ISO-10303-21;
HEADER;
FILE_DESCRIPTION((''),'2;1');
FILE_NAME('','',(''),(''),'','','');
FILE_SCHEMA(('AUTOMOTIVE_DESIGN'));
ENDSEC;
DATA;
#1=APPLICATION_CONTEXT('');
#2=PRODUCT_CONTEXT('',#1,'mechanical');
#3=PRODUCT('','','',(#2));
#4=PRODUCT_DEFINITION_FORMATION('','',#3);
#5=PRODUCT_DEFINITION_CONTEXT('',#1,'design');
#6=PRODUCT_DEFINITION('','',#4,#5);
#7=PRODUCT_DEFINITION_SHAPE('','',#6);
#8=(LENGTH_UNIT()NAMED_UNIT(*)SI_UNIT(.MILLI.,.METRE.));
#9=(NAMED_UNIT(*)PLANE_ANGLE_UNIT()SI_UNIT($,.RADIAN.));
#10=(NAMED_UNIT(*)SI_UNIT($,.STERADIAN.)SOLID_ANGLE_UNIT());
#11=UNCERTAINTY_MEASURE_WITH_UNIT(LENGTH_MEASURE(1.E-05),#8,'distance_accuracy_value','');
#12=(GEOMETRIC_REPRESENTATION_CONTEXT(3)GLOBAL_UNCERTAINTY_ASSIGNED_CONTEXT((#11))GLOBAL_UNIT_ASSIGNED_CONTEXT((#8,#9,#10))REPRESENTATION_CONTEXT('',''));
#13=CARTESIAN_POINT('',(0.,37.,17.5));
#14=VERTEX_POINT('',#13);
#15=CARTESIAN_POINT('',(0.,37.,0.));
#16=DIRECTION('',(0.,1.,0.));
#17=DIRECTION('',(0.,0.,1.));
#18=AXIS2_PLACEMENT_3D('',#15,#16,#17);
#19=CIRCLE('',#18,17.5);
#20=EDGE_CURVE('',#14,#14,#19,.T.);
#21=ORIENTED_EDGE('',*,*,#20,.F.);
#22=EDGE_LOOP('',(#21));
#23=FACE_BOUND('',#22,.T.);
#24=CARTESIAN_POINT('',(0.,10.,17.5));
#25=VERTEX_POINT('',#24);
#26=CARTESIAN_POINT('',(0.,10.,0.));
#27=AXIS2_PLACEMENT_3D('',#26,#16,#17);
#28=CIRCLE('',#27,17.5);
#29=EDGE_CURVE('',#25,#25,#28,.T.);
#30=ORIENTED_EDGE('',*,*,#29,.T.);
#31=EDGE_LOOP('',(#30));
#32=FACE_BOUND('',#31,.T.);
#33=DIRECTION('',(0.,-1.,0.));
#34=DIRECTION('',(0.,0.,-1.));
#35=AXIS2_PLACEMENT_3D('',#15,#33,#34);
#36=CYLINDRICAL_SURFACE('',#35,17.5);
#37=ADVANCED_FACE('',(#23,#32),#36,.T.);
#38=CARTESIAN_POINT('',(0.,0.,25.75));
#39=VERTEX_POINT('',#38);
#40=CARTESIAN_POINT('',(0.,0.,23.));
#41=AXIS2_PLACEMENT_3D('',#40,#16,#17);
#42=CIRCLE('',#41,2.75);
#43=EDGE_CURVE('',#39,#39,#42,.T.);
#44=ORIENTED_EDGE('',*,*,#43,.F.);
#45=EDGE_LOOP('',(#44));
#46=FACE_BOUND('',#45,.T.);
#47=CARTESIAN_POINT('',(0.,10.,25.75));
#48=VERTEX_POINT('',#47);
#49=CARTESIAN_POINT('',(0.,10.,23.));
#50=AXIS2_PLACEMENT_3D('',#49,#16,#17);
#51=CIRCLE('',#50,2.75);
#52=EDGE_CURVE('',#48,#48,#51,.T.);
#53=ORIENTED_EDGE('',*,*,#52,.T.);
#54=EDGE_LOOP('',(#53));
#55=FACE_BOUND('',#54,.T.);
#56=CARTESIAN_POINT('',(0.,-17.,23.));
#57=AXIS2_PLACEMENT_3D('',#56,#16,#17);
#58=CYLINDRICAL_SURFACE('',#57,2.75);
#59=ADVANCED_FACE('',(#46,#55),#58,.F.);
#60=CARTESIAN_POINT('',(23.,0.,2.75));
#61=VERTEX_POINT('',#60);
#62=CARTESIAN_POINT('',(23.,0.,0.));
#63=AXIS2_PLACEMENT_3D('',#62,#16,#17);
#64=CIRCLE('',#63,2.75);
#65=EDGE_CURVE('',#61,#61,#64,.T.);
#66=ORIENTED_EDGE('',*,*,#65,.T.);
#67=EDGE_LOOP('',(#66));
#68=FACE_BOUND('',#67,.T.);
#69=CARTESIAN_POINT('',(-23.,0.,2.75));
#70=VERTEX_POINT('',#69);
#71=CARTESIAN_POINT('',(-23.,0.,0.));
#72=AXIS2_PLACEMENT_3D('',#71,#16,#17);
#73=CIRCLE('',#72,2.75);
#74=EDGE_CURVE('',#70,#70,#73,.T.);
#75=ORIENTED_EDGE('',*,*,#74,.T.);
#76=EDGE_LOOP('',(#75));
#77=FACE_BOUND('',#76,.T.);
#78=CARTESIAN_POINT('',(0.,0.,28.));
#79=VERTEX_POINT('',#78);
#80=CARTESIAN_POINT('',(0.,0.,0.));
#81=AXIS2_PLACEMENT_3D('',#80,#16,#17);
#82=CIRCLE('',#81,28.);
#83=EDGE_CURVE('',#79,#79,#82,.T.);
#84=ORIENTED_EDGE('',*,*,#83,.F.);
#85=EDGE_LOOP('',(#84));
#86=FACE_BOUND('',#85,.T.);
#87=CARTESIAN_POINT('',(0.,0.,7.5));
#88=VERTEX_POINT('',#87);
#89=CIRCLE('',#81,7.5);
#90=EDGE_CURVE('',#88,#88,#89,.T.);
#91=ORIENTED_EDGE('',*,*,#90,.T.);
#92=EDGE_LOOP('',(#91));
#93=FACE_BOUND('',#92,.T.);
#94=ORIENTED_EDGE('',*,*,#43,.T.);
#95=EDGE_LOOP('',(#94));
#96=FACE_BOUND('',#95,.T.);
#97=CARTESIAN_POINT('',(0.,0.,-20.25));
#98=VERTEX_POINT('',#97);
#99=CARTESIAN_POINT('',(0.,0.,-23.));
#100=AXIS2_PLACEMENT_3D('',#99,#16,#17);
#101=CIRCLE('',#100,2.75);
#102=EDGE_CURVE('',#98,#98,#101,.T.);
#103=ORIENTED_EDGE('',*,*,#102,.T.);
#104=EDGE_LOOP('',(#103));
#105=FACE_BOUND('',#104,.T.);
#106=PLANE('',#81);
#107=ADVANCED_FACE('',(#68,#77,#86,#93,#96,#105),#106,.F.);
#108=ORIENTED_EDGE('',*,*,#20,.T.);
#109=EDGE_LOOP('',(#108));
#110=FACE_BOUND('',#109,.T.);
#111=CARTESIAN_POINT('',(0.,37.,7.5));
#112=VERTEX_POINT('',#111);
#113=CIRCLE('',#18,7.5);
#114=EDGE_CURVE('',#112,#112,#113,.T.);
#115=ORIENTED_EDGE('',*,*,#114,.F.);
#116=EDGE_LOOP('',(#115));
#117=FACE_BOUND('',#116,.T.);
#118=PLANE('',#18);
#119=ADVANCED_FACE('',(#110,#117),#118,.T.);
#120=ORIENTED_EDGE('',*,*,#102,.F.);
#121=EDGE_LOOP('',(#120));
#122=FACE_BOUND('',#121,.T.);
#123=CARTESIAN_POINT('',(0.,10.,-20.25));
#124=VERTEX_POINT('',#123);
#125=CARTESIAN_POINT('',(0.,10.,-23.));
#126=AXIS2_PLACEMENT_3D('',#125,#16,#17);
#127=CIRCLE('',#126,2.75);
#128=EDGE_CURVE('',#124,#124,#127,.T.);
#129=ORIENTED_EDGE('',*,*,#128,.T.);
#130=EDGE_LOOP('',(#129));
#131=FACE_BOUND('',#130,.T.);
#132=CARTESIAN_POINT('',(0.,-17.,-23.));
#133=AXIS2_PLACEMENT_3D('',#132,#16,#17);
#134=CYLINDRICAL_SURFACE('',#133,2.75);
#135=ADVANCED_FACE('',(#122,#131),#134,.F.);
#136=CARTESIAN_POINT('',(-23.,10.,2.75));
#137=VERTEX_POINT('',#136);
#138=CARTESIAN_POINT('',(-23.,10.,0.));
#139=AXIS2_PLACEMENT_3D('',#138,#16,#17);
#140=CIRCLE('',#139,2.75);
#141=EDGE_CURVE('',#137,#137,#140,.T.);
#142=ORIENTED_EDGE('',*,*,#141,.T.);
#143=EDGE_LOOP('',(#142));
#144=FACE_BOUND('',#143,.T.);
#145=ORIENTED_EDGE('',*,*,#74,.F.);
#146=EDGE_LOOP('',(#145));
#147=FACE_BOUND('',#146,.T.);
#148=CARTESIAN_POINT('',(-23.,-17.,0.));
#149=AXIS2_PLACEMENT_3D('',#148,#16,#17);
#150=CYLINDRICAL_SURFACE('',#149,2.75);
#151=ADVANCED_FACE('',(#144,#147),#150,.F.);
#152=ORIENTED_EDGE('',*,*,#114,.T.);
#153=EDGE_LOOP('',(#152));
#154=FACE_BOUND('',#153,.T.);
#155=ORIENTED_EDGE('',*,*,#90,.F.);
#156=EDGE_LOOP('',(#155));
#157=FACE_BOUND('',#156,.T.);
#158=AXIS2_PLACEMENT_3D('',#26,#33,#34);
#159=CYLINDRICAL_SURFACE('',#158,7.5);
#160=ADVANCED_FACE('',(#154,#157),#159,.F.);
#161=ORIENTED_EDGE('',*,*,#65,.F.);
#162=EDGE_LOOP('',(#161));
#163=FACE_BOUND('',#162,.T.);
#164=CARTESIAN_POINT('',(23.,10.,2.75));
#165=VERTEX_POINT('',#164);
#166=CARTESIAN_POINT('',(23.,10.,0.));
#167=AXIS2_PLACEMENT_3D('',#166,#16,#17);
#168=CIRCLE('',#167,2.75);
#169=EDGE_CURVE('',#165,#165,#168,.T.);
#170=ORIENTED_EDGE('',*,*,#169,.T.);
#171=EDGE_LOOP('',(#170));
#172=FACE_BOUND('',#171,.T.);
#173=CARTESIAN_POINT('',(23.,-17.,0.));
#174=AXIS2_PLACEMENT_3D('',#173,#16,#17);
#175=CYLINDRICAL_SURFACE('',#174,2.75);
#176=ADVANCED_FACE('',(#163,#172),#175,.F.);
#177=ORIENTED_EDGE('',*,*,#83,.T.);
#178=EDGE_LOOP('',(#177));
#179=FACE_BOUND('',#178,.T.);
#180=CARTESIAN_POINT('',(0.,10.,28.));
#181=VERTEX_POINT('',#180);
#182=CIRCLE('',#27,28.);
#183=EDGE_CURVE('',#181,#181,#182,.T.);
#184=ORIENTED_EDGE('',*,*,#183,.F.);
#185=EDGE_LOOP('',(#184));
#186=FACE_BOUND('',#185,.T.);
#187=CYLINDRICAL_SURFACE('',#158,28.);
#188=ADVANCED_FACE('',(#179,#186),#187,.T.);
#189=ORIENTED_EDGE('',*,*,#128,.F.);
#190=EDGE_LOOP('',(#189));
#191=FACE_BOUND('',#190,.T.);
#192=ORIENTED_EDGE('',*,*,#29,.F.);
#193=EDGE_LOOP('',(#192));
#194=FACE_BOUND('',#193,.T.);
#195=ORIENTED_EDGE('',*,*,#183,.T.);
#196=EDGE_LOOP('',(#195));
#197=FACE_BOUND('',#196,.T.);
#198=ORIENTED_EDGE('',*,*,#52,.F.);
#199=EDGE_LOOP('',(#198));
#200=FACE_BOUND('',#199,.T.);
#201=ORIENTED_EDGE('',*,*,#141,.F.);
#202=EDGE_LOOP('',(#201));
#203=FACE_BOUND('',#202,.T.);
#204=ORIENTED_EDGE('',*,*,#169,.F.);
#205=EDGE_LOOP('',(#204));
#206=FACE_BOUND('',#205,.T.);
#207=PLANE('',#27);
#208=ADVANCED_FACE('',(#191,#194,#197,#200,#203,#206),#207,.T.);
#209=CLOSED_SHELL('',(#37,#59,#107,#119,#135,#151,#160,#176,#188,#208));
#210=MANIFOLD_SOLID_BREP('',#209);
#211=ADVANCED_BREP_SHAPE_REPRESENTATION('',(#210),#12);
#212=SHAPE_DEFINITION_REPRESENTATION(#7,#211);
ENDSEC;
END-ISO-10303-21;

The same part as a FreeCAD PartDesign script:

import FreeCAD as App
import Part
import Sketcher

V = App.Vector

doc = App.newDocument("Part")
body = doc.addObject("PartDesign::Body", "Body")

sketch1 = doc.addObject("Sketcher::SketchObject", "Sketch")
body.addObject(sketch1)
sketch1.AttachmentSupport = (doc.XZ_Plane, [""])
sketch1.MapMode = "FlatFace"
sketch1.addGeometry([
    Part.Circle(V(0, 0, 0), V(0, 0, 1), 28),
    Part.Circle(V(0, 0, 0), V(0, 0, 1), 8),
], False)
sketch1.addConstraint([
    Sketcher.Constraint("Coincident", 0, 3, -1, 1),
    Sketcher.Constraint("Coincident", 1, 3, -1, 1),
    Sketcher.Constraint("Diameter", 0, 56.0),
    Sketcher.Constraint("Diameter", 1, 15.0),
])
pad1 = doc.addObject("PartDesign::Pad", "Pad")
body.addObject(pad1)
pad1.Profile = sketch1
pad1.Length = 10
pad1.Reversed = True

sketch2 = doc.addObject("Sketcher::SketchObject", "Sketch001")
body.addObject(sketch2)
sketch2.AttachmentSupport = (doc.XZ_Plane, [""])
sketch2.MapMode = "FlatFace"
sketch2.AttachmentOffset = App.Placement(V(0, 0, -10), App.Rotation())
sketch2.addGeometry([
    Part.Circle(V(0, 0, 0), V(0, 0, 1), 18),
    Part.Circle(V(0, 0, 0), V(0, 0, 1), 8),
], False)
sketch2.addConstraint([
    Sketcher.Constraint("Coincident", 0, 3, -1, 1),
    Sketcher.Constraint("Coincident", 1, 3, -1, 1),
    Sketcher.Constraint("Diameter", 0, 35.0),
    Sketcher.Constraint("Diameter", 1, 15.0),
])
pad2 = doc.addObject("PartDesign::Pad", "Pad001")
body.addObject(pad2)
pad2.Profile = sketch2
pad2.Length = 27
pad2.Reversed = True

sketch3 = doc.addObject("Sketcher::SketchObject", "Sketch002")
body.addObject(sketch3)
sketch3.AttachmentSupport = (doc.XZ_Plane, [""])
sketch3.MapMode = "FlatFace"
sketch3.AttachmentOffset = App.Placement(V(0, 0, -10), App.Rotation())
sketch3.addGeometry([
    Part.Circle(V(0, -23, 0), V(0, 0, 1), 2.8),
    Part.Circle(V(23, 0, 0), V(0, 0, 1), 2.8),
    Part.Circle(V(0, 23, 0), V(0, 0, 1), 2.8),
    Part.Circle(V(-23, 0, 0), V(0, 0, 1), 2.8),
], False)
sketch3.addConstraint([
    Sketcher.Constraint("Equal", 0, 1),
    Sketcher.Constraint("Equal", 1, 2),
    Sketcher.Constraint("Equal", 2, 3),
    Sketcher.Constraint("Symmetric", 0, 3, 2, 3, -1, 1),
    Sketcher.Constraint("Symmetric", 1, 3, 3, 3, -1, 1),
    Sketcher.Constraint("PointOnObject", 0, 3, -2),
    Sketcher.Constraint("PointOnObject", 1, 3, -1),
    Sketcher.Constraint("Diameter", 0, 5.5),
    Sketcher.Constraint("DistanceY", 0, 3, -1, 1, 23.0),
    Sketcher.Constraint("DistanceX", -1, 1, 1, 3, 23.0),
])
pocket1 = doc.addObject("PartDesign::Pocket", "Pocket")
body.addObject(pocket1)
pocket1.Profile = sketch3
pocket1.Length = 27
pocket1.Reversed = True

doc.recompute()
